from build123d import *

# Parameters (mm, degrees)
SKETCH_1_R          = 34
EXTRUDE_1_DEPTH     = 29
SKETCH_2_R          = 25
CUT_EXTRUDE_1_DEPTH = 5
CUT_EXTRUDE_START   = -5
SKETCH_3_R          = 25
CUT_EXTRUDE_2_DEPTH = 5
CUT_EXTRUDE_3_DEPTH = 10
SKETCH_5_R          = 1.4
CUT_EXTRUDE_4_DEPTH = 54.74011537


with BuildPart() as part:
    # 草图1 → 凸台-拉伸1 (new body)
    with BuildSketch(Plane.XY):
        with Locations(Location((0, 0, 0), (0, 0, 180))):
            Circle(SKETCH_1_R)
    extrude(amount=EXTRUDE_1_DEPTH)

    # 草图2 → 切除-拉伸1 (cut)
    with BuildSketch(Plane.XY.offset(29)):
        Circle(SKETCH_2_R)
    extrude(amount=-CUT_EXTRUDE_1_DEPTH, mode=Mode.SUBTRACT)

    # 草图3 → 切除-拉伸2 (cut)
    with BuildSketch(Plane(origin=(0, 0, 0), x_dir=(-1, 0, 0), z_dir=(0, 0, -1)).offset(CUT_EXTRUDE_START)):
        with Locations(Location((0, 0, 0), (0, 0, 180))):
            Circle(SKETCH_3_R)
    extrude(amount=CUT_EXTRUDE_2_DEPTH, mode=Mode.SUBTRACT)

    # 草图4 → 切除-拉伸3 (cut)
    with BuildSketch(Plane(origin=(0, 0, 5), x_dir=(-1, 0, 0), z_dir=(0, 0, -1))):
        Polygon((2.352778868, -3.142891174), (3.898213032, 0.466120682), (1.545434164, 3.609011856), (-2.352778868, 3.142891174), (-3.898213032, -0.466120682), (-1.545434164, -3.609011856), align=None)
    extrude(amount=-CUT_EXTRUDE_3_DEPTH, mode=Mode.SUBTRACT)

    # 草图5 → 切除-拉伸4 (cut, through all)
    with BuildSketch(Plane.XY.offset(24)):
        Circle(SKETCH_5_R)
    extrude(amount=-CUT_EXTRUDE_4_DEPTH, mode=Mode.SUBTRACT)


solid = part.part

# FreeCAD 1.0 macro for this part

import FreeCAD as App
import Part
import Sketcher

V = App.Vector
Q = App.Units.Quantity

doc = App.newDocument("Part")
body = doc.addObject("PartDesign::Body", "Body")

sketch1 = body.newObject("Sketcher::SketchObject", "Sketch")
sketch1.AttachmentSupport = (doc.getObject("XY_Plane"), [""])
sketch1.MapMode = "FlatFace"
sketch1.addGeometry(Part.Circle(V(0, 0, 0), V(0, 0, 1), 34), False)
sketch1.addConstraint(Sketcher.Constraint("Coincident", 0, 3, -1, 1))
sketch1.addConstraint(Sketcher.Constraint("Diameter", 0, Q("68 mm")))
pad1 = body.newObject("PartDesign::Pad", "Pad")
pad1.Profile = sketch1
pad1.Length = 29

sketch2 = body.newObject("Sketcher::SketchObject", "Sketch001")
sketch2.AttachmentSupport = (doc.getObject("XY_Plane"), [""])
sketch2.MapMode = "FlatFace"
sketch2.AttachmentOffset = App.Placement(V(0, 0, 29), App.Rotation())
sketch2.addGeometry(Part.Circle(V(0, 0, 0), V(0, 0, 1), 25), False)
sketch2.addConstraint(Sketcher.Constraint("Coincident", 0, 3, -1, 1))
sketch2.addConstraint(Sketcher.Constraint("Diameter", 0, Q("50 mm")))
pocket1 = body.newObject("PartDesign::Pocket", "Pocket")
pocket1.Profile = sketch2
pocket1.Length = 5

sketch3 = body.newObject("Sketcher::SketchObject", "Sketch002")
sketch3.AttachmentSupport = (doc.getObject("XY_Plane"), [""])
sketch3.MapMode = "FlatFace"
sketch3.AttachmentOffset = App.Placement(V(0, 0, 5), App.Rotation())
sketch3.addGeometry(Part.Circle(V(0, 0, 0), V(0, 0, 1), 25), False)
sketch3.addConstraint(Sketcher.Constraint("Coincident", 0, 3, -1, 1))
sketch3.addConstraint(Sketcher.Constraint("Diameter", 0, Q("50 mm")))
pocket2 = body.newObject("PartDesign::Pocket", "Pocket001")
pocket2.Profile = sketch3
pocket2.Length = 5

sketch4 = body.newObject("Sketcher::SketchObject", "Sketch003")
sketch4.AttachmentSupport = (doc.getObject("XY_Plane"), [""])
sketch4.MapMode = "FlatFace"
sketch4.AttachmentOffset = App.Placement(V(0, 0, 5), App.Rotation())
sketch4.addGeometry(Part.LineSegment(V(-2.4, -3.1, 0), V(-3.9, 0.5, 0)), False)
sketch4.addGeometry(Part.LineSegment(V(-3.9, 0.5, 0), V(-1.5, 3.6, 0)), False)
sketch4.addGeometry(Part.LineSegment(V(-1.5, 3.6, 0), V(2.4, 3.1, 0)), False)
sketch4.addGeometry(Part.LineSegment(V(2.4, 3.1, 0), V(3.9, -0.5, 0)), False)
sketch4.addGeometry(Part.LineSegment(V(3.9, -0.5, 0), V(1.5, -3.6, 0)), False)
sketch4.addGeometry(Part.LineSegment(V(1.5, -3.6, 0), V(-2.4, -3.1, 0)), False)
sketch4.addConstraint(Sketcher.Constraint("Coincident", 0, 2, 1, 1))
sketch4.addConstraint(Sketcher.Constraint("Coincident", 1, 2, 2, 1))
sketch4.addConstraint(Sketcher.Constraint("Coincident", 2, 2, 3, 1))
sketch4.addConstraint(Sketcher.Constraint("Coincident", 3, 2, 4, 1))
sketch4.addConstraint(Sketcher.Constraint("Coincident", 4, 2, 5, 1))
sketch4.addConstraint(Sketcher.Constraint("Coincident", 5, 2, 0, 1))
sketch4.addConstraint(Sketcher.Constraint("Symmetric", 0, 2, 3, 2, -1, 1))
sketch4.addConstraint(Sketcher.Constraint("Symmetric", 1, 2, 4, 2, -1, 1))
sketch4.addConstraint(Sketcher.Constraint("Symmetric", 2, 2, 5, 2, -1, 1))
sketch4.addConstraint(Sketcher.Constraint("Equal", 0, 1))
sketch4.addConstraint(Sketcher.Constraint("Equal", 1, 2))
sketch4.addConstraint(Sketcher.Constraint("Distance", 0, Q("3.925982 mm")))
sketch4.addConstraint(Sketcher.Constraint("DistanceY", -1, 1, 0, 2, Q("0.466121 mm")))
sketch4.addConstraint(Sketcher.Constraint("DistanceY", -1, 1, 1, 2, Q("3.609012 mm")))
sketch4.addConstraint(Sketcher.Constraint("DistanceX", -1, 1, 2, 2, Q("2.352779 mm")))
pocket3 = body.newObject("PartDesign::Pocket", "Pocket002")
pocket3.Profile = sketch4
pocket3.Length = 10
pocket3.Reversed = True

sketch5 = body.newObject("Sketcher::SketchObject", "Sketch004")
sketch5.AttachmentSupport = (doc.getObject("XY_Plane"), [""])
sketch5.MapMode = "FlatFace"
sketch5.AttachmentOffset = App.Placement(V(0, 0, 24), App.Rotation())
sketch5.addGeometry(Part.Circle(V(0, 0, 0), V(0, 0, 1), 1.4), False)
sketch5.addConstraint(Sketcher.Constraint("Coincident", 0, 3, -1, 1))
sketch5.addConstraint(Sketcher.Constraint("Diameter", 0, Q("2.8 mm")))
pocket4 = body.newObject("PartDesign::Pocket", "Pocket003")
pocket4.Profile = sketch5
pocket4.Type = "ThroughAll"

doc.recompute()
